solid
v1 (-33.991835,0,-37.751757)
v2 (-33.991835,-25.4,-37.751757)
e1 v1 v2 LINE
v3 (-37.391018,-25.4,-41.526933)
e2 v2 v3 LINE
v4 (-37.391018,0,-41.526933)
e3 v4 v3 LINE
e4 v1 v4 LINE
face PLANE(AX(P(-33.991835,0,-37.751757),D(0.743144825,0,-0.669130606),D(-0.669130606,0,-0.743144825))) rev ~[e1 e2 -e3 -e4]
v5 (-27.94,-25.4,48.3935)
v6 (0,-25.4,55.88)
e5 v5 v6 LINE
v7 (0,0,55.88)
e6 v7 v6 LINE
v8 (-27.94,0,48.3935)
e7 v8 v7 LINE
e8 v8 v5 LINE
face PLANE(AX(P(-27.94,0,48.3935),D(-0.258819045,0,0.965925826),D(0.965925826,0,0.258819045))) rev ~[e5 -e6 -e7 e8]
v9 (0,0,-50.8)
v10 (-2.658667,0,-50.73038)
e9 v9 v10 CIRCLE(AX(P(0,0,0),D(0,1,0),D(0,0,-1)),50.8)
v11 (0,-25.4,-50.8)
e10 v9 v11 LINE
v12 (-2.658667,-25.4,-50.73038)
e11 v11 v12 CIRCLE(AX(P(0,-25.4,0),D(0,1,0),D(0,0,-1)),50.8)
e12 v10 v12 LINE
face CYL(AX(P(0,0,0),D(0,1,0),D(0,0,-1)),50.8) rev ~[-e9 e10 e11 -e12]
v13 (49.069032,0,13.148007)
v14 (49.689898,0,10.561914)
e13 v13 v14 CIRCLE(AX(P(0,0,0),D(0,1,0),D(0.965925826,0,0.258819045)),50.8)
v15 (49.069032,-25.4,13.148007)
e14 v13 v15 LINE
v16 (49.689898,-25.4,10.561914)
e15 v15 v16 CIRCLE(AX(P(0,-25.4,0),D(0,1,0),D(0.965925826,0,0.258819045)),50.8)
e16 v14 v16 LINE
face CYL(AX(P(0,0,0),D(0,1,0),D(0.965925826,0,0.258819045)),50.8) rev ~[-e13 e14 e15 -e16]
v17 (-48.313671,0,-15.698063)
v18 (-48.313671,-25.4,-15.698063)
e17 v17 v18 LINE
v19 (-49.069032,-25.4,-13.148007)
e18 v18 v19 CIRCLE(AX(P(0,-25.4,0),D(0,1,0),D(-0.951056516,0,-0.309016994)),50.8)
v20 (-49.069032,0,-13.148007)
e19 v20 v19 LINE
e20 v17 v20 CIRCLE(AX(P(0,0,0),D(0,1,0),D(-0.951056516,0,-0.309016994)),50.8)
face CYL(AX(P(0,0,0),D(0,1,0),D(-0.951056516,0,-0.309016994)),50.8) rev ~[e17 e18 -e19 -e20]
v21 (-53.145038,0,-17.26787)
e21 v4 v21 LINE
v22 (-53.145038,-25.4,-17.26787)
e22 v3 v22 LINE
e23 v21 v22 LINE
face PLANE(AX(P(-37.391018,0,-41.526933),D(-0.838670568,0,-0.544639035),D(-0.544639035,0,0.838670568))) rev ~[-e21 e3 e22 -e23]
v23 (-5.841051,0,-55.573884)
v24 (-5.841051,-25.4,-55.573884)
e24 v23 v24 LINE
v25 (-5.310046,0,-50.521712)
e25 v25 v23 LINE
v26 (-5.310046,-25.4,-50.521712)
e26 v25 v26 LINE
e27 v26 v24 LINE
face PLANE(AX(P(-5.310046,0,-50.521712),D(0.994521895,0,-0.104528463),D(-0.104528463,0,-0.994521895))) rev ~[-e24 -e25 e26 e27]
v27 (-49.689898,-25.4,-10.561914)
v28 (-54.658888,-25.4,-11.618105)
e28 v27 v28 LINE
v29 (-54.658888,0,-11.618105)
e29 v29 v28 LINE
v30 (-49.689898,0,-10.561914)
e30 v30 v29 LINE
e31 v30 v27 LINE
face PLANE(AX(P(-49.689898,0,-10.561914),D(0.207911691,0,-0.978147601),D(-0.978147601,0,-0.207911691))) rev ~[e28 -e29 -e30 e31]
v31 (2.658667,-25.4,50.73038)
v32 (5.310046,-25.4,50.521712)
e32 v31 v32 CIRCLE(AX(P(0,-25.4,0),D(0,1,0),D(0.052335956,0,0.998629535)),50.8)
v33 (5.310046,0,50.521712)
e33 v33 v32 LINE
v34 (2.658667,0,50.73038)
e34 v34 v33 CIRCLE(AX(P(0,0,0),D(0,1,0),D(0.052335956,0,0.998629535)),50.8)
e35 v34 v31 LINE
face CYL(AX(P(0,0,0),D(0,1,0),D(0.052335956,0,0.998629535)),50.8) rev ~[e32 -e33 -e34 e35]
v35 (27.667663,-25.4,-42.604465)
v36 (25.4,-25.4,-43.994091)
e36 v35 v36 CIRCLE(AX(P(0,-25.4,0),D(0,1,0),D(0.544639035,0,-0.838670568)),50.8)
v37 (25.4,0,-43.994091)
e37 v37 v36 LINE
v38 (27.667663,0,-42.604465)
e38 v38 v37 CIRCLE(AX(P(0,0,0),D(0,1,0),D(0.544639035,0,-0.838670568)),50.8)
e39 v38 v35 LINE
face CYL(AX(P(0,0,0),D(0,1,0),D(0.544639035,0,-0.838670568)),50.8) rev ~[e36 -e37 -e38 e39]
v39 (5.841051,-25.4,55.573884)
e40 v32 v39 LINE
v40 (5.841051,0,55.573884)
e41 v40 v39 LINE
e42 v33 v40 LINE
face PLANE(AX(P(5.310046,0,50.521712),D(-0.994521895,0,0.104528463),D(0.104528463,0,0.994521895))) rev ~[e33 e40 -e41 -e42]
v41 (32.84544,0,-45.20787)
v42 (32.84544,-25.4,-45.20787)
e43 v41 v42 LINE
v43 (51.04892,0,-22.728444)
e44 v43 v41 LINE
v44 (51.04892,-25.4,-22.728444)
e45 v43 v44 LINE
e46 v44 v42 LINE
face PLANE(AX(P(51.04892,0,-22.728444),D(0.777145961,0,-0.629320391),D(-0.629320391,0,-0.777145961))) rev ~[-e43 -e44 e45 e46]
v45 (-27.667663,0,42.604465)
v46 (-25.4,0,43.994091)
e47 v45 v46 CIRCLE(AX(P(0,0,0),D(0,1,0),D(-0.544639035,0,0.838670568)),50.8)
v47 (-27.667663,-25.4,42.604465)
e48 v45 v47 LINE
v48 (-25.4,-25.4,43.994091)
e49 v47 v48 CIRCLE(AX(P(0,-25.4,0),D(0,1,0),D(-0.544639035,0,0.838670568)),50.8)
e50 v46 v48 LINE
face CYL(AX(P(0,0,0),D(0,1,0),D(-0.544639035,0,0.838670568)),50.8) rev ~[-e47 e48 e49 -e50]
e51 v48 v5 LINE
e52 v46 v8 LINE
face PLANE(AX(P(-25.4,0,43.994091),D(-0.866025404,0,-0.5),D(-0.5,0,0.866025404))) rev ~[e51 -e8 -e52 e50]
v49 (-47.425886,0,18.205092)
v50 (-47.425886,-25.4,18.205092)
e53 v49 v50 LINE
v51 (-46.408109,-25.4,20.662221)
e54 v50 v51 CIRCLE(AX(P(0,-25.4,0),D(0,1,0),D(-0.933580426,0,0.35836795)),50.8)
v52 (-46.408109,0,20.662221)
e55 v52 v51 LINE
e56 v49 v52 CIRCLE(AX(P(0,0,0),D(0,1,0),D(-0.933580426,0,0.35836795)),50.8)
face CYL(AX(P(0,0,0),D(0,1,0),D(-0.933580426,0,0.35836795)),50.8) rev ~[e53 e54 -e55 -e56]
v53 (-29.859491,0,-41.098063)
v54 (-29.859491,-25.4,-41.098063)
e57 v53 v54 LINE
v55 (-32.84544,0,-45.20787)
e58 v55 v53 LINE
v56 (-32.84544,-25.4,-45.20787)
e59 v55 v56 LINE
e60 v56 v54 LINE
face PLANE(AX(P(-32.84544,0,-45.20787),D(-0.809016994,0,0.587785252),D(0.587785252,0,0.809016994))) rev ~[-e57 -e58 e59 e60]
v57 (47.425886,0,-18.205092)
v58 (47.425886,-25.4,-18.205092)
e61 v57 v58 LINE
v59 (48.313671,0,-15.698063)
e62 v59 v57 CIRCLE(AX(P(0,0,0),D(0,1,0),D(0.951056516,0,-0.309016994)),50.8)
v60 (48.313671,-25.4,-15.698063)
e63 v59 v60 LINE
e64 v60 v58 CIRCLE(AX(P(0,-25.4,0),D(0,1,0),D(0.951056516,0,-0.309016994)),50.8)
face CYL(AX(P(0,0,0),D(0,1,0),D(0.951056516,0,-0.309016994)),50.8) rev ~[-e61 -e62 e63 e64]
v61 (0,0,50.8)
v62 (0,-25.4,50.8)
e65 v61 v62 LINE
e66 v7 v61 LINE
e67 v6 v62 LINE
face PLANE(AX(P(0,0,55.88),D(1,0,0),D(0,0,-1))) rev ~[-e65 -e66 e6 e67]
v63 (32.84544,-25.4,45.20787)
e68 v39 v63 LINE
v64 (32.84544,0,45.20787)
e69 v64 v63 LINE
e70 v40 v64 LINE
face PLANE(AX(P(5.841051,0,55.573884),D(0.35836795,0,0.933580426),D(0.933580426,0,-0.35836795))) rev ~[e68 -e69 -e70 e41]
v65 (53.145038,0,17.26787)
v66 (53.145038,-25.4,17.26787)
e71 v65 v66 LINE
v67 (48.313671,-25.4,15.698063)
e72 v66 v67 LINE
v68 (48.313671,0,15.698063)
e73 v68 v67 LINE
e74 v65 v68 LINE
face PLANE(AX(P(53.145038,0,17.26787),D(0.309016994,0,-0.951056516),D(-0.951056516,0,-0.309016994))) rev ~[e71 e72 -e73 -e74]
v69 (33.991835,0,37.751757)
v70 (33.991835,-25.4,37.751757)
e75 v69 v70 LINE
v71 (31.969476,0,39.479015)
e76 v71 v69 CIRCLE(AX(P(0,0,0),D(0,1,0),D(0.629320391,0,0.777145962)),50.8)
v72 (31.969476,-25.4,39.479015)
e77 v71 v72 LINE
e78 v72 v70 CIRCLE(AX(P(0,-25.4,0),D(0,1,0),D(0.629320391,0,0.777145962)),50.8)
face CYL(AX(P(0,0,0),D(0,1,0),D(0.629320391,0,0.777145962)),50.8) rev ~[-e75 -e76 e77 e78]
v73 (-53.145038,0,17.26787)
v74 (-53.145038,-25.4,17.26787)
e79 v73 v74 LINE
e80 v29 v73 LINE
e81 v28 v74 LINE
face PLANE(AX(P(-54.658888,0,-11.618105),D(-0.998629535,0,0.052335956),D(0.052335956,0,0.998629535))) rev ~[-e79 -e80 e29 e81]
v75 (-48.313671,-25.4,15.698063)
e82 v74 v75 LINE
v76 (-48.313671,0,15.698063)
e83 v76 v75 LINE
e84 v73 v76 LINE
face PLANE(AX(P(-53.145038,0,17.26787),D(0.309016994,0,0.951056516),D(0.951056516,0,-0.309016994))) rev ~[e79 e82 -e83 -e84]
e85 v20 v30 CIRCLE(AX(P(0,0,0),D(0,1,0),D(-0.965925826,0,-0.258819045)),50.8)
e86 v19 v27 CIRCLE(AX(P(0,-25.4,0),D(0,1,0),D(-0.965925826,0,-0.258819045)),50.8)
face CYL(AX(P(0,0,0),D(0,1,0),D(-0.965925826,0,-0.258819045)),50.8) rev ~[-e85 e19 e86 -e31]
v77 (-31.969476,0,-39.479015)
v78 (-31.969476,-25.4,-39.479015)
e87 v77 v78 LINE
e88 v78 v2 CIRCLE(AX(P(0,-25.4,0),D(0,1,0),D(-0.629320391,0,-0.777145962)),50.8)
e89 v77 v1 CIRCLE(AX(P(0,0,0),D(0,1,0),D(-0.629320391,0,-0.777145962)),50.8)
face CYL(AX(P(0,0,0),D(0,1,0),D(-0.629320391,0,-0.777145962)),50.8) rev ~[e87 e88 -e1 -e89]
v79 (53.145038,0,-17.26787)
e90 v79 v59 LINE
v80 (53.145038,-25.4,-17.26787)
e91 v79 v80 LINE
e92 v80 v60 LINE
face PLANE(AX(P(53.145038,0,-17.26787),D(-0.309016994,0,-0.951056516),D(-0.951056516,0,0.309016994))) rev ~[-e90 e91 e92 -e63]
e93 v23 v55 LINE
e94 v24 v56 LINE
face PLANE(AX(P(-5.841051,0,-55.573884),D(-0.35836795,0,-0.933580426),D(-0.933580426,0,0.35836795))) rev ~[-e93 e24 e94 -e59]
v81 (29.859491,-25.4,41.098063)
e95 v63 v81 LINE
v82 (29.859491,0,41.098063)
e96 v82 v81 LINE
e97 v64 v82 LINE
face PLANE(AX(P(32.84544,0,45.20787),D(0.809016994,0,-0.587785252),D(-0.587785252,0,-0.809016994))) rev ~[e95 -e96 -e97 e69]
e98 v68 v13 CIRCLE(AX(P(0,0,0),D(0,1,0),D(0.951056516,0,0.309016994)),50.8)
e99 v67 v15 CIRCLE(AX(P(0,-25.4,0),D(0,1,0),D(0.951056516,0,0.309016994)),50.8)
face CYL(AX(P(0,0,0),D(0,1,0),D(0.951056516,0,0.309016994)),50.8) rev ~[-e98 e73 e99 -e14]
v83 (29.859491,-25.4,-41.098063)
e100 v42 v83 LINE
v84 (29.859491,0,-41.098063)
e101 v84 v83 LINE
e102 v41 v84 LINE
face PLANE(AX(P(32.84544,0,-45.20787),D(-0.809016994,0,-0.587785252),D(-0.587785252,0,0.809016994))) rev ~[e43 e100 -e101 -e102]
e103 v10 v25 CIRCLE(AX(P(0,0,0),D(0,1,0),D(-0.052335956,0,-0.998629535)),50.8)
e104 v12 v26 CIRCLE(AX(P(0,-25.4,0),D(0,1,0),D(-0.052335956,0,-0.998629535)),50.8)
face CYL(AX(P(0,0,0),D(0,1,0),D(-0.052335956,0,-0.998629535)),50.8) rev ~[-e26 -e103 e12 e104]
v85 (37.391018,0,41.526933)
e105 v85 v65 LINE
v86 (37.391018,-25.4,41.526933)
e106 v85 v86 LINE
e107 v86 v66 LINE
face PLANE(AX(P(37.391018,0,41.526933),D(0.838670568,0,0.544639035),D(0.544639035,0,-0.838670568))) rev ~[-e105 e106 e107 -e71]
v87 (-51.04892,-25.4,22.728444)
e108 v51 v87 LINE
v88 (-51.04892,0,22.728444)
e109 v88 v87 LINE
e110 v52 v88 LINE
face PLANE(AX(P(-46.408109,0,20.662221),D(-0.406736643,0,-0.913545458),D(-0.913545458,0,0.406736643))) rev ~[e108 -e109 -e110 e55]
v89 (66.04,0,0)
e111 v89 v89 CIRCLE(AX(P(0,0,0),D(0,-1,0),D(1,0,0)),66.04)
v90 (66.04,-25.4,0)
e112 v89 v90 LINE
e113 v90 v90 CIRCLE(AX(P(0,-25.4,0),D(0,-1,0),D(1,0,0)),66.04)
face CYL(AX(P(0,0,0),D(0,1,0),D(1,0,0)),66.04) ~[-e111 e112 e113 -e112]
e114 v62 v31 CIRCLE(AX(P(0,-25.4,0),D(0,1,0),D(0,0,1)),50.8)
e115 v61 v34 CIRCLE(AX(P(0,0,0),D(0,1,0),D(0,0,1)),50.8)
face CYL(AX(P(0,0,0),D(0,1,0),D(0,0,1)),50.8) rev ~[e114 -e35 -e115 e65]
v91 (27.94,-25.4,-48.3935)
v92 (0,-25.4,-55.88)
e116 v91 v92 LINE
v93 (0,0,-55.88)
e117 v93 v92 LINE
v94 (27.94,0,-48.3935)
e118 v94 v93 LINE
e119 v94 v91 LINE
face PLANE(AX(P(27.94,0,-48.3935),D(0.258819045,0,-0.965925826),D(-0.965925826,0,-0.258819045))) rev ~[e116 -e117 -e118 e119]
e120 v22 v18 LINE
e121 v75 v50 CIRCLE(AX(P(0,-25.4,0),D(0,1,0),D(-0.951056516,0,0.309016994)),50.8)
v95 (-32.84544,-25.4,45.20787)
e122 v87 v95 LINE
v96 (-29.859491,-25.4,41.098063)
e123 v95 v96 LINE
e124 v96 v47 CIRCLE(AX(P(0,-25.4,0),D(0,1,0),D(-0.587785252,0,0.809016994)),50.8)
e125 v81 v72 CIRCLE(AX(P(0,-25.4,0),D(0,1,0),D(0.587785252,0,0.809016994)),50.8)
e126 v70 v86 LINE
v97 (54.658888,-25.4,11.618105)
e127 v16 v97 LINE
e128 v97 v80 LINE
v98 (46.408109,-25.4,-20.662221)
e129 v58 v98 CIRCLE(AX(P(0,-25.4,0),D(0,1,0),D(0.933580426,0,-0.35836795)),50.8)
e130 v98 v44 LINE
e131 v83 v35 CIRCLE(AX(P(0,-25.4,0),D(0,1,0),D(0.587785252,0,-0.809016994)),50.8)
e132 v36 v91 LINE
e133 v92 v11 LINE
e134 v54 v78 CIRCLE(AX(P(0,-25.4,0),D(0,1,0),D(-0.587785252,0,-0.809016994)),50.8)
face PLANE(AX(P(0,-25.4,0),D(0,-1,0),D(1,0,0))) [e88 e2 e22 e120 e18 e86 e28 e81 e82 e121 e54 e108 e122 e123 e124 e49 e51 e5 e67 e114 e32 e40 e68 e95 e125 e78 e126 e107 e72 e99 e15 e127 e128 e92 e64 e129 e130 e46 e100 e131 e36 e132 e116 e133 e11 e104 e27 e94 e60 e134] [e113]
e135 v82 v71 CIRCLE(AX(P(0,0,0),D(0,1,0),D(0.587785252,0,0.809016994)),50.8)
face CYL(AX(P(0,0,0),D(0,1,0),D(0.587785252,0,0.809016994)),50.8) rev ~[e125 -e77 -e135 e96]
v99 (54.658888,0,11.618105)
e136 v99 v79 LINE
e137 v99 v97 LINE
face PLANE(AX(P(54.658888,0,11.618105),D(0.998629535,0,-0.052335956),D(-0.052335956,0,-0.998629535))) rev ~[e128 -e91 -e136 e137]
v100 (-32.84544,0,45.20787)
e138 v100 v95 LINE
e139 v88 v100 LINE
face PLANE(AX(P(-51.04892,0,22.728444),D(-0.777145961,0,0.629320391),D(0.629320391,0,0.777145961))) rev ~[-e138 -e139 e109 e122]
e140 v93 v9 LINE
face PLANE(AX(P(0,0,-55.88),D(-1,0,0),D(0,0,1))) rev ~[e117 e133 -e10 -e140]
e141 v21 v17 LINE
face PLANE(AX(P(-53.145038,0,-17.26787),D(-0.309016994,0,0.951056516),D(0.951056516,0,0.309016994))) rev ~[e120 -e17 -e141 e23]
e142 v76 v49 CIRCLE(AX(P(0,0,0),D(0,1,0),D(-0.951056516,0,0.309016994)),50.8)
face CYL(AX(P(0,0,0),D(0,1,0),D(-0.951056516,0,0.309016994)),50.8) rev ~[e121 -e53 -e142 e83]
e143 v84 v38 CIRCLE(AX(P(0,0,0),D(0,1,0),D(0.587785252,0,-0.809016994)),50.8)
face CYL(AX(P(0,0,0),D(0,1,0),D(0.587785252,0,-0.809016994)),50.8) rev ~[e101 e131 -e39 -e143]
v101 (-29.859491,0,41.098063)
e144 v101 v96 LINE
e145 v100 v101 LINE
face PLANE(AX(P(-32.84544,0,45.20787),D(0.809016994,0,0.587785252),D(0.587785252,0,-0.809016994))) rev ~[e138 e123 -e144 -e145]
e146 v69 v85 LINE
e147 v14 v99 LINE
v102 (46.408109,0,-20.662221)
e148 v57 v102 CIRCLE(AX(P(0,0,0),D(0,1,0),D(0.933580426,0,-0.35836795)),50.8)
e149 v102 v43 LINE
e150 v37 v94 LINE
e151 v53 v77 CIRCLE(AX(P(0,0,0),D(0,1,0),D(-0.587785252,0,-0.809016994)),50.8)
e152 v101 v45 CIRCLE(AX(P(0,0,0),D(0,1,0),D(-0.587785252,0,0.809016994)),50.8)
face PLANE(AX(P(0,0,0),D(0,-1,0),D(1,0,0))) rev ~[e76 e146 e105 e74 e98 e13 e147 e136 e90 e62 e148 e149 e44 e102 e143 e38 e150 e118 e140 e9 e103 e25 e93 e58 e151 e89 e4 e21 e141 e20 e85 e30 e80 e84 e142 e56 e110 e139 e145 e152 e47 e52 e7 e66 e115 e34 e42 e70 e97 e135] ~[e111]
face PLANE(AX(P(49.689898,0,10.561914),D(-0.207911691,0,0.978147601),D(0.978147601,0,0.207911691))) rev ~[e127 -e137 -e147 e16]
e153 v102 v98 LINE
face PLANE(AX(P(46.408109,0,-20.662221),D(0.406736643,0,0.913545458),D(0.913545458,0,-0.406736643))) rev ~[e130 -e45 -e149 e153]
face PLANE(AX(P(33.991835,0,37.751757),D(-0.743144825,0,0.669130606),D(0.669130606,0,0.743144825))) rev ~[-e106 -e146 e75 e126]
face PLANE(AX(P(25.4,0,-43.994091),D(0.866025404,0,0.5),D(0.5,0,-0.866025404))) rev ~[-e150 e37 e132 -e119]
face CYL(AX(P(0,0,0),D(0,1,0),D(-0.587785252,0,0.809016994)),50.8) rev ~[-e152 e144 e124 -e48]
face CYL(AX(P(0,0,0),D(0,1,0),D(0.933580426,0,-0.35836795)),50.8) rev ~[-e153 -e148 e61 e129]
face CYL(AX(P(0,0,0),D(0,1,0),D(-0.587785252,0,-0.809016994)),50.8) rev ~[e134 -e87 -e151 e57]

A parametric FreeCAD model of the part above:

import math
import FreeCAD as App
import Part
import Sketcher
from FreeCAD import Vector
Q = App.Units.Quantity

doc = App.newDocument("Part")
body = doc.addObject("PartDesign::Body", "Body")

# Sketch on XZ plane
sketch1 = body.newObject("Sketcher::SketchObject", "Sketch")
sketch1.AttachmentSupport = (doc.getObject("XZ_Plane"), [""])
sketch1.MapMode = "FlatFace"
sketch1.addGeometry(Part.Circle(Vector(0, 0, 0), Vector(0, 0, 1), 66.04), False)
sketch1.addGeometry(Part.LineSegment(Vector(53.145038, -17.26787, 0), Vector(48.313671, -15.698063, 0)), False)
sketch1.addGeometry(Part.ArcOfCircle(Part.Circle(Vector(0, 0, 0), Vector(0, 0, 1), 50.8), math.radians(-21), math.radians(-18)), False)
sketch1.addGeometry(Part.ArcOfCircle(Part.Circle(Vector(0, 0, 0), Vector(0, 0, 1), 50.8), math.radians(-24), math.radians(-21)), False)
sketch1.addGeometry(Part.LineSegment(Vector(46.408109, -20.662221, 0), Vector(51.04892, -22.728444, 0)), False)
sketch1.addGeometry(Part.LineSegment(Vector(51.04892, -22.728444, 0), Vector(32.84544, -45.20787, 0)), False)
sketch1.addGeometry(Part.LineSegment(Vector(32.84544, -45.20787, 0), Vector(29.859491, -41.098063, 0)), False)
sketch1.addGeometry(Part.ArcOfCircle(Part.Circle(Vector(0, 0, 0), Vector(0, 0, 1), 50.8), math.radians(-57), math.radians(-54)), False)
sketch1.addGeometry(Part.ArcOfCircle(Part.Circle(Vector(0, 0, 0), Vector(0, 0, 1), 50.8), math.radians(-60), math.radians(-57)), False)
sketch1.addGeometry(Part.LineSegment(Vector(25.4, -43.994091, 0), Vector(27.94, -48.3935, 0)), False)
sketch1.addGeometry(Part.LineSegment(Vector(27.94, -48.3935, 0), Vector(0, -55.88, 0)), False)
sketch1.addGeometry(Part.LineSegment(Vector(0, -55.88, 0), Vector(0, -50.8, 0)), False)
sketch1.addGeometry(Part.ArcOfCircle(Part.Circle(Vector(0, 0, 0), Vector(0, 0, 1), 50.8), math.radians(-93), math.radians(-90)), False)
sketch1.addGeometry(Part.ArcOfCircle(Part.Circle(Vector(0, 0, 0), Vector(0, 0, 1), 50.8), math.radians(-96), math.radians(-93)), False)
sketch1.addGeometry(Part.LineSegment(Vector(-5.310046, -50.521712, 0), Vector(-5.841051, -55.573884, 0)), False)
sketch1.addGeometry(Part.LineSegment(Vector(-5.841051, -55.573884, 0), Vector(-32.84544, -45.20787, 0)), False)
sketch1.addGeometry(Part.LineSegment(Vector(-32.84544, -45.20787, 0), Vector(-29.859491, -41.098063, 0)), False)
sketch1.addGeometry(Part.ArcOfCircle(Part.Circle(Vector(0, 0, 0), Vector(0, 0, 1), 50.8), math.radians(-129), math.radians(-126)), False)
sketch1.addGeometry(Part.ArcOfCircle(Part.Circle(Vector(0, 0, 0), Vector(0, 0, 1), 50.8), math.radians(-132), math.radians(-129)), False)
sketch1.addGeometry(Part.LineSegment(Vector(-33.991835, -37.751757, 0), Vector(-37.391018, -41.526933, 0)), False)
sketch1.addGeometry(Part.LineSegment(Vector(-37.391018, -41.526933, 0), Vector(-53.145038, -17.26787, 0)), False)
sketch1.addGeometry(Part.LineSegment(Vector(-53.145038, -17.26787, 0), Vector(-48.313671, -15.698063, 0)), False)
sketch1.addGeometry(Part.ArcOfCircle(Part.Circle(Vector(0, 0, 0), Vector(0, 0, 1), 50.8), math.radians(-165), math.radians(-162)), False)
sketch1.addGeometry(Part.ArcOfCircle(Part.Circle(Vector(0, 0, 0), Vector(0, 0, 1), 50.8), math.radians(-168), math.radians(-165)), False)
sketch1.addGeometry(Part.LineSegment(Vector(-49.689898, -10.561914, 0), Vector(-54.658888, -11.618105, 0)), False)
sketch1.addGeometry(Part.LineSegment(Vector(-54.658888, -11.618105, 0), Vector(-53.145038, 17.26787, 0)), False)
sketch1.addGeometry(Part.LineSegment(Vector(-53.145038, 17.26787, 0), Vector(-48.313671, 15.698063, 0)), False)
sketch1.addGeometry(Part.ArcOfCircle(Part.Circle(Vector(0, 0, 0), Vector(0, 0, 1), 50.8), math.radians(159), math.radians(162)), False)
sketch1.addGeometry(Part.ArcOfCircle(Part.Circle(Vector(0, 0, 0), Vector(0, 0, 1), 50.8), math.radians(156), math.radians(159)), False)
sketch1.addGeometry(Part.LineSegment(Vector(-46.408109, 20.662221, 0), Vector(-51.04892, 22.728444, 0)), False)
sketch1.addGeometry(Part.LineSegment(Vector(-51.04892, 22.728444, 0), Vector(-32.84544, 45.20787, 0)), False)
sketch1.addGeometry(Part.LineSegment(Vector(-32.84544, 45.20787, 0), Vector(-29.859491, 41.098063, 0)), False)
sketch1.addGeometry(Part.ArcOfCircle(Part.Circle(Vector(0, 0, 0), Vector(0, 0, 1), 50.8), math.radians(123), math.radians(126)), False)
sketch1.addGeometry(Part.ArcOfCircle(Part.Circle(Vector(0, 0, 0), Vector(0, 0, 1), 50.8), math.radians(120), math.radians(123)), False)
sketch1.addGeometry(Part.LineSegment(Vector(-25.4, 43.994091, 0), Vector(-27.94, 48.3935, 0)), False)
sketch1.addGeometry(Part.LineSegment(Vector(-27.94, 48.3935, 0), Vector(0, 55.88, 0)), False)
sketch1.addGeometry(Part.LineSegment(Vector(0, 55.88, 0), Vector(0, 50.8, 0)), False)
sketch1.addGeometry(Part.ArcOfCircle(Part.Circle(Vector(0, 0, 0), Vector(0, 0, 1), 50.8), math.radians(87), math.radians(90)), False)
sketch1.addGeometry(Part.ArcOfCircle(Part.Circle(Vector(0, 0, 0), Vector(0, 0, 1), 50.8), math.radians(84), math.radians(87)), False)
sketch1.addGeometry(Part.LineSegment(Vector(5.310046, 50.521712, 0), Vector(5.841051, 55.573884, 0)), False)
sketch1.addGeometry(Part.LineSegment(Vector(5.841051, 55.573884, 0), Vector(32.84544, 45.20787, 0)), False)
sketch1.addGeometry(Part.LineSegment(Vector(32.84544, 45.20787, 0), Vector(29.859491, 41.098063, 0)), False)
sketch1.addGeometry(Part.ArcOfCircle(Part.Circle(Vector(0, 0, 0), Vector(0, 0, 1), 50.8), math.radians(51), math.radians(54)), False)
sketch1.addGeometry(Part.ArcOfCircle(Part.Circle(Vector(0, 0, 0), Vector(0, 0, 1), 50.8), math.radians(48), math.radians(51)), False)
sketch1.addGeometry(Part.LineSegment(Vector(33.991835, 37.751757, 0), Vector(37.391018, 41.526933, 0)), False)
sketch1.addGeometry(Part.LineSegment(Vector(37.391018, 41.526933, 0), Vector(53.145038, 17.26787, 0)), False)
sketch1.addGeometry(Part.LineSegment(Vector(53.145038, 17.26787, 0), Vector(48.313671, 15.698063, 0)), False)
sketch1.addGeometry(Part.ArcOfCircle(Part.Circle(Vector(0, 0, 0), Vector(0, 0, 1), 50.8), math.radians(15), math.radians(18)), False)
sketch1.addGeometry(Part.ArcOfCircle(Part.Circle(Vector(0, 0, 0), Vector(0, 0, 1), 50.8), math.radians(12), math.radians(15)), False)
sketch1.addGeometry(Part.LineSegment(Vector(49.689898, 10.561914, 0), Vector(54.658888, 11.618105, 0)), False)
sketch1.addGeometry(Part.LineSegment(Vector(54.658888, 11.618105, 0), Vector(53.145038, -17.26787, 0)), False)
sketch1.addConstraint(Sketcher.Constraint("Coincident", 1, 2, 2, 2))
sketch1.addConstraint(Sketcher.Constraint("Tangent", 2, 1, 3, 2))
sketch1.addConstraint(Sketcher.Constraint("Coincident", 3, 1, 4, 1))
sketch1.addConstraint(Sketcher.Constraint("Coincident", 4, 2, 5, 1))
sketch1.addConstraint(Sketcher.Constraint("Coincident", 5, 2, 6, 1))
sketch1.addConstraint(Sketcher.Constraint("Coincident", 6, 2, 7, 2))
sketch1.addConstraint(Sketcher.Constraint("Tangent", 7, 1, 8, 2))
sketch1.addConstraint(Sketcher.Constraint("Coincident", 8, 1, 9, 1))
sketch1.addConstraint(Sketcher.Constraint("Coincident", 9, 2, 10, 1))
sketch1.addConstraint(Sketcher.Constraint("Coincident", 10, 2, 11, 1))
sketch1.addConstraint(Sketcher.Constraint("Coincident", 11, 2, 12, 2))
sketch1.addConstraint(Sketcher.Constraint("Tangent", 12, 1, 13, 2))
sketch1.addConstraint(Sketcher.Constraint("Coincident", 13, 1, 14, 1))
sketch1.addConstraint(Sketcher.Constraint("Coincident", 14, 2, 15, 1))
sketch1.addConstraint(Sketcher.Constraint("Coincident", 15, 2, 16, 1))
sketch1.addConstraint(Sketcher.Constraint("Coincident", 16, 2, 17, 2))
sketch1.addConstraint(Sketcher.Constraint("Tangent", 17, 1, 18, 2))
sketch1.addConstraint(Sketcher.Constraint("Coincident", 18, 1, 19, 1))
sketch1.addConstraint(Sketcher.Constraint("Coincident", 19, 2, 20, 1))
sketch1.addConstraint(Sketcher.Constraint("Coincident", 20, 2, 21, 1))
sketch1.addConstraint(Sketcher.Constraint("Coincident", 21, 2, 22, 2))
sketch1.addConstraint(Sketcher.Constraint("Tangent", 22, 1, 23, 2))
sketch1.addConstraint(Sketcher.Constraint("Coincident", 23, 1, 24, 1))
sketch1.addConstraint(Sketcher.Constraint("Coincident", 24, 2, 25, 1))
sketch1.addConstraint(Sketcher.Constraint("Coincident", 25, 2, 26, 1))
sketch1.addConstraint(Sketcher.Constraint("Coincident", 26, 2, 27, 2))
sketch1.addConstraint(Sketcher.Constraint("Tangent", 27, 1, 28, 2))
sketch1.addConstraint(Sketcher.Constraint("Coincident", 28, 1, 29, 1))
sketch1.addConstraint(Sketcher.Constraint("Coincident", 29, 2, 30, 1))
sketch1.addConstraint(Sketcher.Constraint("Coincident", 30, 2, 31, 1))
sketch1.addConstraint(Sketcher.Constraint("Coincident", 31, 2, 32, 2))
sketch1.addConstraint(Sketcher.Constraint("Tangent", 32, 1, 33, 2))
sketch1.addConstraint(Sketcher.Constraint("Coincident", 33, 1, 34, 1))
sketch1.addConstraint(Sketcher.Constraint("Coincident", 34, 2, 35, 1))
sketch1.addConstraint(Sketcher.Constraint("Coincident", 35, 2, 36, 1))
sketch1.addConstraint(Sketcher.Constraint("Coincident", 36, 2, 37, 2))
sketch1.addConstraint(Sketcher.Constraint("Tangent", 37, 1, 38, 2))
sketch1.addConstraint(Sketcher.Constraint("Coincident", 38, 1, 39, 1))
sketch1.addConstraint(Sketcher.Constraint("Coincident", 39, 2, 40, 1))
sketch1.addConstraint(Sketcher.Constraint("Coincident", 40, 2, 41, 1))
sketch1.addConstraint(Sketcher.Constraint("Coincident", 41, 2, 42, 2))
sketch1.addConstraint(Sketcher.Constraint("Tangent", 42, 1, 43, 2))
sketch1.addConstraint(Sketcher.Constraint("Coincident", 43, 1, 44, 1))
sketch1.addConstraint(Sketcher.Constraint("Coincident", 44, 2, 45, 1))
sketch1.addConstraint(Sketcher.Constraint("Coincident", 45, 2, 46, 1))
sketch1.addConstraint(Sketcher.Constraint("Coincident", 46, 2, 47, 2))
sketch1.addConstraint(Sketcher.Constraint("Tangent", 47, 1, 48, 2))
sketch1.addConstraint(Sketcher.Constraint("Coincident", 48, 1, 49, 1))
sketch1.addConstraint(Sketcher.Constraint("Coincident", 49, 2, 50, 1))
sketch1.addConstraint(Sketcher.Constraint("Coincident", 50, 2, 1, 1))
sketch1.addConstraint(Sketcher.Constraint("Vertical", 11))
sketch1.addConstraint(Sketcher.Constraint("Vertical", 36))
sketch1.addConstraint(Sketcher.Constraint("Coincident", 0, 3, -1, 1))
sketch1.addConstraint(Sketcher.Constraint("Coincident", 2, 3, -1, 1))
sketch1.addConstraint(Sketcher.Constraint("Coincident", 7, 3, -1, 1))
sketch1.addConstraint(Sketcher.Constraint("Coincident", 12, 3, -1, 1))
sketch1.addConstraint(Sketcher.Constraint("Coincident", 17, 3, -1, 1))
sketch1.addConstraint(Sketcher.Constraint("Coincident", 22, 3, -1, 1))
sketch1.addConstraint(Sketcher.Constraint("Coincident", 27, 3, -1, 1))
sketch1.addConstraint(Sketcher.Constraint("Coincident", 32, 3, -1, 1))
sketch1.addConstraint(Sketcher.Constraint("Coincident", 37, 3, -1, 1))
sketch1.addConstraint(Sketcher.Constraint("Coincident", 42, 3, -1, 1))
sketch1.addConstraint(Sketcher.Constraint("Coincident", 47, 3, -1, 1))
sketch1.addConstraint(Sketcher.Constraint("Equal", 2, 3))
sketch1.addConstraint(Sketcher.Constraint("Equal", 3, 7))
sketch1.addConstraint(Sketcher.Constraint("Equal", 7, 8))
sketch1.addConstraint(Sketcher.Constraint("Equal", 8, 12))
sketch1.addConstraint(Sketcher.Constraint("Equal", 12, 13))
sketch1.addConstraint(Sketcher.Constraint("Equal", 13, 17))
sketch1.addConstraint(Sketcher.Constraint("Equal", 17, 18))
sketch1.addConstraint(Sketcher.Constraint("Equal", 18, 22))
sketch1.addConstraint(Sketcher.Constraint("Equal", 22, 23))
sketch1.addConstraint(Sketcher.Constraint("Equal", 23, 27))
sketch1.addConstraint(Sketcher.Constraint("Equal", 27, 28))
sketch1.addConstraint(Sketcher.Constraint("Equal", 28, 32))
sketch1.addConstraint(Sketcher.Constraint("Equal", 32, 33))
sketch1.addConstraint(Sketcher.Constraint("Equal", 33, 37))
sketch1.addConstraint(Sketcher.Constraint("Equal", 37, 38))
sketch1.addConstraint(Sketcher.Constraint("Equal", 38, 42))
sketch1.addConstraint(Sketcher.Constraint("Equal", 42, 43))
sketch1.addConstraint(Sketcher.Constraint("Equal", 43, 47))
sketch1.addConstraint(Sketcher.Constraint("Equal", 47, 48))
sketch1.addConstraint(Sketcher.Constraint("Symmetric", 4, 2, 29, 2, -1, 1))
sketch1.addConstraint(Sketcher.Constraint("Symmetric", 5, 2, 30, 2, -1, 1))
sketch1.addConstraint(Sketcher.Constraint("Symmetric", 9, 2, 34, 2, -1, 1))
sketch1.addConstraint(Sketcher.Constraint("Symmetric", 10, 2, 35, 2, -1, 1))
sketch1.addConstraint(Sketcher.Constraint("Symmetric", 14, 2, 39, 2, -1, 1))
sketch1.addConstraint(Sketcher.Constraint("Symmetric", 15, 2, 40, 2, -1, 1))
sketch1.addConstraint(Sketcher.Constraint("Symmetric", 19, 2, 44, 2, -1, 1))
sketch1.addConstraint(Sketcher.Constraint("Symmetric", 20, 2, 45, 2, -1, 1))
sketch1.addConstraint(Sketcher.Constraint("Symmetric", 24, 2, 49, 2, -1, 1))
sketch1.addConstraint(Sketcher.Constraint("Symmetric", 25, 2, 50, 2, -1, 1))
sketch1.addConstraint(Sketcher.Constraint("Symmetric", 5, 2, 15, 2, -2))
sketch1.addConstraint(Sketcher.Constraint("Symmetric", 25, 2, 45, 2, -2))
sketch1.addConstraint(Sketcher.Constraint("PointOnObject", 10, 2, -2))
sketch1.addConstraint(Sketcher.Constraint("Parallel", 1, 26))
sketch1.addConstraint(Sketcher.Constraint("Parallel", 4, 29))
sketch1.addConstraint(Sketcher.Constraint("Parallel", 6, 31))
sketch1.addConstraint(Sketcher.Constraint("Parallel", 9, 34))
sketch1.addConstraint(Sketcher.Constraint("Parallel", 14, 39))
sketch1.addConstraint(Sketcher.Constraint("Parallel", 16, 41))
sketch1.addConstraint(Sketcher.Constraint("Parallel", 19, 44))
sketch1.addConstraint(Sketcher.Constraint("Parallel", 21, 46))
sketch1.addConstraint(Sketcher.Constraint("Parallel", 24, 49))
sketch1.addConstraint(Sketcher.Constraint("Horizontal", 6, 2, 16, 2))
sketch1.addConstraint(Sketcher.Constraint("Horizontal", 1, 2, 21, 2))
sketch1.addConstraint(Sketcher.Constraint("Equal", 1, 4))
sketch1.addConstraint(Sketcher.Constraint("Equal", 4, 6))
sketch1.addConstraint(Sketcher.Constraint("Equal", 6, 9))
sketch1.addConstraint(Sketcher.Constraint("Equal", 5, 10))
sketch1.addConstraint(Sketcher.Constraint("Equal", 9, 14))
sketch1.addConstraint(Sketcher.Constraint("Equal", 10, 15))
sketch1.addConstraint(Sketcher.Constraint("Equal", 16, 19))
sketch1.addConstraint(Sketcher.Constraint("Equal", 15, 20))
sketch1.addConstraint(Sketcher.Constraint("Equal", 21, 24))
sketch1.addConstraint(Sketcher.Constraint("Equal", 20, 25))
sketch1.addConstraint(Sketcher.Constraint("Radius", 2, Q("2 in")))
sketch1.addConstraint(Sketcher.Constraint("Diameter", 0, Q("5.2 in")))
sketch1.addConstraint(Sketcher.Constraint("DistanceY", 11, 1, 11, 2, Q("0.2 in")))
sketch1.addConstraint(Sketcher.Constraint("DistanceX", -1, 1, 8, 1, Q("1 in")))
sketch1.addConstraint(Sketcher.Constraint("Angle", 1, Q("162 deg")))
sketch1.addConstraint(Sketcher.Constraint("Angle", 4, Q("-24 deg")))
sketch1.addConstraint(Sketcher.Constraint("Angle", 5, Q("-129 deg")))
sketch1.addConstraint(Sketcher.Constraint("Angle", 6, Q("126 deg")))
sketch1.addConstraint(Sketcher.Constraint("Angle", 9, Q("-60 deg")))
sketch1.addConstraint(Sketcher.Constraint("Angle", 10, Q("-165 deg")))
sketch1.addConstraint(Sketcher.Constraint("Angle", 14, Q("-96 deg")))
sketch1.addConstraint(Sketcher.Constraint("Angle", 19, Q("-132 deg")))
sketch1.addConstraint(Sketcher.Constraint("Angle", 20, Q("123 deg")))
sketch1.addConstraint(Sketcher.Constraint("Angle", 24, Q("-168 deg")))
sketch1.addConstraint(Sketcher.Constraint("DistanceY", 2, 1, -1, 1, Q("18.205092 mm")))
sketch1.addConstraint(Sketcher.Constraint("DistanceY", 12, 1, -1, 1, Q("50.73038 mm")))
sketch1.addConstraint(Sketcher.Constraint("DistanceX", 22, 1, -1, 1, Q("49.069032 mm")))
sketch1.addConstraint(Sketcher.Constraint("DistanceY", -1, 1, 27, 1, Q("18.205092 mm")))
sketch1.addConstraint(Sketcher.Constraint("DistanceY", -1, 1, 37, 1, Q("50.73038 mm")))
sketch1.addConstraint(Sketcher.Constraint("DistanceX", -1, 1, 47, 1, Q("49.069032 mm")))
sketch1.addConstraint(Sketcher.Constraint("DistanceX", -1, 1, 7, 1, Q("27.667663 mm")))
sketch1.addConstraint(Sketcher.Constraint("DistanceX", 17, 1, -1, 1, Q("31.969476 mm")))
sketch1.addConstraint(Sketcher.Constraint("DistanceX", 32, 1, -1, 1, Q("27.667663 mm")))
sketch1.addConstraint(Sketcher.Constraint("DistanceX", -1, 1, 42, 1, Q("31.969476 mm")))
pad1 = body.newObject("PartDesign::Pad", "Pad")
pad1.Profile = sketch1
pad1.Length = Q("1 in")

doc.recompute()
